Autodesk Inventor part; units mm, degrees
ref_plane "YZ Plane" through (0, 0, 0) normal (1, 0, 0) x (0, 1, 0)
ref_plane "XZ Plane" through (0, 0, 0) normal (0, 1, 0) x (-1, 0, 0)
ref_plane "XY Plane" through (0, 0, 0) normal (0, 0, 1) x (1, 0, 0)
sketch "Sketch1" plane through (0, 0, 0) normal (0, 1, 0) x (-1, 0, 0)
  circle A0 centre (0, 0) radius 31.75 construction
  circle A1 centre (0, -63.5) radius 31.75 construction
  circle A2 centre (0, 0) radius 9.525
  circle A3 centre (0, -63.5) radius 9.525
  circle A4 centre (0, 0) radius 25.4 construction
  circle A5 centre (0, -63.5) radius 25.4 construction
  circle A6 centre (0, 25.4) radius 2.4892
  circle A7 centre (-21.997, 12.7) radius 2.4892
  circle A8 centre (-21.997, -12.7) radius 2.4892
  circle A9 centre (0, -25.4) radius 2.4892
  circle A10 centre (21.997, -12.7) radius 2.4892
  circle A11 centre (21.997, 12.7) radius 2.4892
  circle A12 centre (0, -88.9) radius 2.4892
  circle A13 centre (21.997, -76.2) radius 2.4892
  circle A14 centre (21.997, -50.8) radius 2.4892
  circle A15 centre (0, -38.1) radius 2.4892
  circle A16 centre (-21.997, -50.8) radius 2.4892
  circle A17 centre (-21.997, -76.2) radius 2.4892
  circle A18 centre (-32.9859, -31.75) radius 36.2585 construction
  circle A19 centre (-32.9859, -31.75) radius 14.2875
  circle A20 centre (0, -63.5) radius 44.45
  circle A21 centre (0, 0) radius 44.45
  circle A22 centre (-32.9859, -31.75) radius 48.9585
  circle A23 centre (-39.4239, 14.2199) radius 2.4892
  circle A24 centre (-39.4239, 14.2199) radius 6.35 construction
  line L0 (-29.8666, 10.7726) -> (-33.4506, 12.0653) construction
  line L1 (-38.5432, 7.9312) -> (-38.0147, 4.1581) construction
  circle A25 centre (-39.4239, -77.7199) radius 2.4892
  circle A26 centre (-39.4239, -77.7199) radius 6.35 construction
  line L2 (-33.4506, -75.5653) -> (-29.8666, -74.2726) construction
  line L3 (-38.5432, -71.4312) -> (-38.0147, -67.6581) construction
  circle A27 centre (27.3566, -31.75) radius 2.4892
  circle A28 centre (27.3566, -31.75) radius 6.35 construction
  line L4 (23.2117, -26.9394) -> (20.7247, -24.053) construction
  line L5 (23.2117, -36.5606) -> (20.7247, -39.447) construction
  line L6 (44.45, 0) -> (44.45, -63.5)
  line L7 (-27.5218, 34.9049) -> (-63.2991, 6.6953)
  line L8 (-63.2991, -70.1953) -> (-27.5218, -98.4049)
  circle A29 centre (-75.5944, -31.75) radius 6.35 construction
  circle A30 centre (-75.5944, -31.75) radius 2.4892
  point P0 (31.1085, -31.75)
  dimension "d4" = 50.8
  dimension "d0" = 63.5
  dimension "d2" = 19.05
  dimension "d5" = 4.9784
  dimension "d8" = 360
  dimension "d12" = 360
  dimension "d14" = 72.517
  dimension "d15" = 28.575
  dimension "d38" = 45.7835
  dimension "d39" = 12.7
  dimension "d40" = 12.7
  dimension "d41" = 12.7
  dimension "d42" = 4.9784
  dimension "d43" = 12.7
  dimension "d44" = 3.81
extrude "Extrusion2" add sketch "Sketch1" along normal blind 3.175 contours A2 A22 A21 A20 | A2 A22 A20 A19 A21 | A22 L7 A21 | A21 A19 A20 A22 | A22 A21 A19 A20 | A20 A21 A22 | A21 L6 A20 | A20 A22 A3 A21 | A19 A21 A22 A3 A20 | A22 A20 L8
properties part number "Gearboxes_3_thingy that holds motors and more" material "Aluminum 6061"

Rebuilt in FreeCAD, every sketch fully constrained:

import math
import FreeCAD as App
import Part
import Sketcher
Q = App.Units.Quantity

doc = App.newDocument("Part")
body = doc.addObject("PartDesign::Body", "Body")

sketch1 = body.newObject("Sketcher::SketchObject", "Sketch")
sketch1.AttachmentSupport = (doc.getObject("XZ_Plane"), [""])
sketch1.MapMode = "FlatFace"
sketch1.addGeometry([
    Part.ArcOfCircle(Part.Circle(App.Vector(0, 0, 0), App.Vector(0, 0, 1), 44.45), math.radians(51.744943), math.radians(180)),
    Part.LineSegment(App.Vector(27.5218, 34.9049, 0), App.Vector(63.2991, 6.6953, 0)),
    Part.ArcOfCircle(Part.Circle(App.Vector(32.9859, -31.75, 0), App.Vector(0, 0, 1), 48.9585), math.radians(-51.745065), math.radians(51.745065)),
    Part.LineSegment(App.Vector(63.2991, -70.1953, 0), App.Vector(27.5218, -98.4049, 0)),
    Part.ArcOfCircle(Part.Circle(App.Vector(0, -63.5, 0), App.Vector(0, 0, 1), 44.45), math.radians(180), math.radians(308.255057)),
    Part.LineSegment(App.Vector(-44.45, -63.5, 0), App.Vector(-44.45, 0, 0)),
    Part.Circle(App.Vector(0, 0, 0), App.Vector(0, 0, 1), 9.525),
    Part.Circle(App.Vector(-21.997, -12.7, 0), App.Vector(0, 0, 1), 2.4892),
    Part.Circle(App.Vector(0, 25.4, 0), App.Vector(0, 0, 1), 2.4892),
    Part.Circle(App.Vector(-21.997, 12.7, 0), App.Vector(0, 0, 1), 2.4892),
    Part.Circle(App.Vector(39.4239, 14.2199, 0), App.Vector(0, 0, 1), 2.4892),
    Part.Circle(App.Vector(32.9859, -31.75, 0), App.Vector(0, 0, 1), 14.2875),
    Part.Circle(App.Vector(21.997, 12.7, 0), App.Vector(0, 0, 1), 2.4892),
    Part.Circle(App.Vector(21.997, -12.7, 0), App.Vector(0, 0, 1), 2.4892),
    Part.Circle(App.Vector(-27.3566, -31.75, 0), App.Vector(0, 0, 1), 2.4892),
    Part.Circle(App.Vector(0, -25.4, 0), App.Vector(0, 0, 1), 2.4892),
    Part.Circle(App.Vector(0, -38.1, 0), App.Vector(0, 0, 1), 2.4892),
    Part.Circle(App.Vector(75.5944, -31.75, 0), App.Vector(0, 0, 1), 2.4892),
    Part.Circle(App.Vector(-21.997, -50.8, 0), App.Vector(0, 0, 1), 2.4892),
    Part.Circle(App.Vector(0, -63.5, 0), App.Vector(0, 0, 1), 9.525),
    Part.Circle(App.Vector(-21.997, -76.2, 0), App.Vector(0, 0, 1), 2.4892),
    Part.Circle(App.Vector(0, -88.9, 0), App.Vector(0, 0, 1), 2.4892),
    Part.Circle(App.Vector(21.997, -50.8, 0), App.Vector(0, 0, 1), 2.4892),
    Part.Circle(App.Vector(21.997, -76.2, 0), App.Vector(0, 0, 1), 2.4892),
    Part.Circle(App.Vector(39.4239, -77.7199, 0), App.Vector(0, 0, 1), 2.4892),
], False)
sketch1.addConstraint([
    Sketcher.Constraint("Tangent", 0, 1, 1, 1),
    Sketcher.Constraint("Tangent", 1, 2, 2, 2),
    Sketcher.Constraint("Tangent", 2, 1, 3, 1),
    Sketcher.Constraint("Tangent", 3, 2, 4, 2),
    Sketcher.Constraint("Tangent", 4, 1, 5, 1),
    Sketcher.Constraint("Tangent", 5, 2, 0, 2),
    Sketcher.Constraint("Vertical", 5),
    Sketcher.Constraint("Coincident", 0, 3, -1, 1),
    Sketcher.Constraint("Coincident", 6, 3, -1, 1),
    Sketcher.Constraint("Coincident", 11, 3, 2, 3),
    Sketcher.Constraint("Coincident", 19, 3, 4, 3),
    Sketcher.Constraint("Equal", 0, 4),
    Sketcher.Constraint("Equal", 7, 8),
    Sketcher.Constraint("Equal", 8, 9),
    Sketcher.Constraint("Equal", 9, 10),
    Sketcher.Constraint("Equal", 10, 12),
    Sketcher.Constraint("Equal", 12, 13),
    Sketcher.Constraint("Equal", 13, 14),
    Sketcher.Constraint("Equal", 14, 15),
    Sketcher.Constraint("Equal", 15, 16),
    Sketcher.Constraint("Equal", 16, 17),
    Sketcher.Constraint("Equal", 17, 18),
    Sketcher.Constraint("Equal", 6, 19),
    Sketcher.Constraint("Equal", 18, 20),
    Sketcher.Constraint("Equal", 20, 21),
    Sketcher.Constraint("Equal", 21, 22),
    Sketcher.Constraint("Equal", 22, 23),
    Sketcher.Constraint("Equal", 23, 24),
    Sketcher.Constraint("Symmetric", 7, 3, 12, 3, -1, 1),
    Sketcher.Constraint("Symmetric", 9, 3, 13, 3, -1, 1),
    Sketcher.Constraint("Symmetric", 8, 3, 15, 3, -1, 1),
    Sketcher.Constraint("Symmetric", 9, 3, 12, 3, -2),
    Sketcher.Constraint("Symmetric", 18, 3, 22, 3, -2),
    Sketcher.Constraint("Symmetric", 20, 3, 23, 3, -2),
    Sketcher.Constraint("PointOnObject", 8, 3, -2),
    Sketcher.Constraint("PointOnObject", 16, 3, -2),
    Sketcher.Constraint("PointOnObject", 21, 3, -2),
    Sketcher.Constraint("Horizontal", 11, 3, 14, 3),
    Sketcher.Constraint("Horizontal", 14, 3, 17, 3),
    Sketcher.Constraint("Vertical", 9, 3, 18, 3),
    Sketcher.Constraint("Vertical", 18, 3, 20, 3),
    Sketcher.Constraint("Vertical", 10, 3, 24, 3),
    Sketcher.Constraint("Vertical", 1, 2, 2, 1),
    Sketcher.Constraint("Diameter", 6, Q("0.75 in")),
    Sketcher.Constraint("Diameter", 7, Q("0.196 in")),
    Sketcher.Constraint("Diameter", 11, Q("1.125 in")),
    Sketcher.Constraint("DistanceY", 5, 1, 5, 2, Q("2.5 in")),
    Sketcher.Constraint("DistanceY", 18, 3, -1, 1, Q("2 in")),
    Sketcher.Constraint("DistanceY", 4, 3, 7, 3, Q("2 in")),
    Sketcher.Constraint("DistanceY", 21, 3, 16, 3, Q("2 in")),
    Sketcher.Constraint("DistanceY", 9, 3, 8, 3, Q("0.5 in")),
    Sketcher.Constraint("DistanceY", 16, 3, 15, 3, Q("0.5 in")),
    Sketcher.Constraint("DistanceY", 20, 3, 4, 3, Q("0.5 in")),
    Sketcher.Constraint("Radius", 0, Q("1.75 in")),
    Sketcher.Constraint("Radius", 2, Q("1.9275 in")),
    Sketcher.Constraint("DistanceX", 14, 3, 7, 3, Q("0.211 in")),
    Sketcher.Constraint("DistanceY", -1, 1, 0, 1, Q("1.3742 in")),
    Sketcher.Constraint("DistanceX", 12, 3, 10, 3, Q("0.6861 in")),
    Sketcher.Constraint("DistanceX", 2, 3, 17, 3, Q("1.6775 in")),
    Sketcher.Constraint("DistanceX", 23, 3, 3, 2, Q("0.2175 in")),
    Sketcher.Constraint("DistanceY", -1, 1, 10, 3, 14.22),
    Sketcher.Constraint("DistanceY", 24, 3, -1, 1, 77.72),
])
pad1 = body.newObject("PartDesign::Pad", "Pad")
pad1.Profile = sketch1
pad1.Length = Q("0.125 in")
pad1.Reversed = True

doc.recompute()
